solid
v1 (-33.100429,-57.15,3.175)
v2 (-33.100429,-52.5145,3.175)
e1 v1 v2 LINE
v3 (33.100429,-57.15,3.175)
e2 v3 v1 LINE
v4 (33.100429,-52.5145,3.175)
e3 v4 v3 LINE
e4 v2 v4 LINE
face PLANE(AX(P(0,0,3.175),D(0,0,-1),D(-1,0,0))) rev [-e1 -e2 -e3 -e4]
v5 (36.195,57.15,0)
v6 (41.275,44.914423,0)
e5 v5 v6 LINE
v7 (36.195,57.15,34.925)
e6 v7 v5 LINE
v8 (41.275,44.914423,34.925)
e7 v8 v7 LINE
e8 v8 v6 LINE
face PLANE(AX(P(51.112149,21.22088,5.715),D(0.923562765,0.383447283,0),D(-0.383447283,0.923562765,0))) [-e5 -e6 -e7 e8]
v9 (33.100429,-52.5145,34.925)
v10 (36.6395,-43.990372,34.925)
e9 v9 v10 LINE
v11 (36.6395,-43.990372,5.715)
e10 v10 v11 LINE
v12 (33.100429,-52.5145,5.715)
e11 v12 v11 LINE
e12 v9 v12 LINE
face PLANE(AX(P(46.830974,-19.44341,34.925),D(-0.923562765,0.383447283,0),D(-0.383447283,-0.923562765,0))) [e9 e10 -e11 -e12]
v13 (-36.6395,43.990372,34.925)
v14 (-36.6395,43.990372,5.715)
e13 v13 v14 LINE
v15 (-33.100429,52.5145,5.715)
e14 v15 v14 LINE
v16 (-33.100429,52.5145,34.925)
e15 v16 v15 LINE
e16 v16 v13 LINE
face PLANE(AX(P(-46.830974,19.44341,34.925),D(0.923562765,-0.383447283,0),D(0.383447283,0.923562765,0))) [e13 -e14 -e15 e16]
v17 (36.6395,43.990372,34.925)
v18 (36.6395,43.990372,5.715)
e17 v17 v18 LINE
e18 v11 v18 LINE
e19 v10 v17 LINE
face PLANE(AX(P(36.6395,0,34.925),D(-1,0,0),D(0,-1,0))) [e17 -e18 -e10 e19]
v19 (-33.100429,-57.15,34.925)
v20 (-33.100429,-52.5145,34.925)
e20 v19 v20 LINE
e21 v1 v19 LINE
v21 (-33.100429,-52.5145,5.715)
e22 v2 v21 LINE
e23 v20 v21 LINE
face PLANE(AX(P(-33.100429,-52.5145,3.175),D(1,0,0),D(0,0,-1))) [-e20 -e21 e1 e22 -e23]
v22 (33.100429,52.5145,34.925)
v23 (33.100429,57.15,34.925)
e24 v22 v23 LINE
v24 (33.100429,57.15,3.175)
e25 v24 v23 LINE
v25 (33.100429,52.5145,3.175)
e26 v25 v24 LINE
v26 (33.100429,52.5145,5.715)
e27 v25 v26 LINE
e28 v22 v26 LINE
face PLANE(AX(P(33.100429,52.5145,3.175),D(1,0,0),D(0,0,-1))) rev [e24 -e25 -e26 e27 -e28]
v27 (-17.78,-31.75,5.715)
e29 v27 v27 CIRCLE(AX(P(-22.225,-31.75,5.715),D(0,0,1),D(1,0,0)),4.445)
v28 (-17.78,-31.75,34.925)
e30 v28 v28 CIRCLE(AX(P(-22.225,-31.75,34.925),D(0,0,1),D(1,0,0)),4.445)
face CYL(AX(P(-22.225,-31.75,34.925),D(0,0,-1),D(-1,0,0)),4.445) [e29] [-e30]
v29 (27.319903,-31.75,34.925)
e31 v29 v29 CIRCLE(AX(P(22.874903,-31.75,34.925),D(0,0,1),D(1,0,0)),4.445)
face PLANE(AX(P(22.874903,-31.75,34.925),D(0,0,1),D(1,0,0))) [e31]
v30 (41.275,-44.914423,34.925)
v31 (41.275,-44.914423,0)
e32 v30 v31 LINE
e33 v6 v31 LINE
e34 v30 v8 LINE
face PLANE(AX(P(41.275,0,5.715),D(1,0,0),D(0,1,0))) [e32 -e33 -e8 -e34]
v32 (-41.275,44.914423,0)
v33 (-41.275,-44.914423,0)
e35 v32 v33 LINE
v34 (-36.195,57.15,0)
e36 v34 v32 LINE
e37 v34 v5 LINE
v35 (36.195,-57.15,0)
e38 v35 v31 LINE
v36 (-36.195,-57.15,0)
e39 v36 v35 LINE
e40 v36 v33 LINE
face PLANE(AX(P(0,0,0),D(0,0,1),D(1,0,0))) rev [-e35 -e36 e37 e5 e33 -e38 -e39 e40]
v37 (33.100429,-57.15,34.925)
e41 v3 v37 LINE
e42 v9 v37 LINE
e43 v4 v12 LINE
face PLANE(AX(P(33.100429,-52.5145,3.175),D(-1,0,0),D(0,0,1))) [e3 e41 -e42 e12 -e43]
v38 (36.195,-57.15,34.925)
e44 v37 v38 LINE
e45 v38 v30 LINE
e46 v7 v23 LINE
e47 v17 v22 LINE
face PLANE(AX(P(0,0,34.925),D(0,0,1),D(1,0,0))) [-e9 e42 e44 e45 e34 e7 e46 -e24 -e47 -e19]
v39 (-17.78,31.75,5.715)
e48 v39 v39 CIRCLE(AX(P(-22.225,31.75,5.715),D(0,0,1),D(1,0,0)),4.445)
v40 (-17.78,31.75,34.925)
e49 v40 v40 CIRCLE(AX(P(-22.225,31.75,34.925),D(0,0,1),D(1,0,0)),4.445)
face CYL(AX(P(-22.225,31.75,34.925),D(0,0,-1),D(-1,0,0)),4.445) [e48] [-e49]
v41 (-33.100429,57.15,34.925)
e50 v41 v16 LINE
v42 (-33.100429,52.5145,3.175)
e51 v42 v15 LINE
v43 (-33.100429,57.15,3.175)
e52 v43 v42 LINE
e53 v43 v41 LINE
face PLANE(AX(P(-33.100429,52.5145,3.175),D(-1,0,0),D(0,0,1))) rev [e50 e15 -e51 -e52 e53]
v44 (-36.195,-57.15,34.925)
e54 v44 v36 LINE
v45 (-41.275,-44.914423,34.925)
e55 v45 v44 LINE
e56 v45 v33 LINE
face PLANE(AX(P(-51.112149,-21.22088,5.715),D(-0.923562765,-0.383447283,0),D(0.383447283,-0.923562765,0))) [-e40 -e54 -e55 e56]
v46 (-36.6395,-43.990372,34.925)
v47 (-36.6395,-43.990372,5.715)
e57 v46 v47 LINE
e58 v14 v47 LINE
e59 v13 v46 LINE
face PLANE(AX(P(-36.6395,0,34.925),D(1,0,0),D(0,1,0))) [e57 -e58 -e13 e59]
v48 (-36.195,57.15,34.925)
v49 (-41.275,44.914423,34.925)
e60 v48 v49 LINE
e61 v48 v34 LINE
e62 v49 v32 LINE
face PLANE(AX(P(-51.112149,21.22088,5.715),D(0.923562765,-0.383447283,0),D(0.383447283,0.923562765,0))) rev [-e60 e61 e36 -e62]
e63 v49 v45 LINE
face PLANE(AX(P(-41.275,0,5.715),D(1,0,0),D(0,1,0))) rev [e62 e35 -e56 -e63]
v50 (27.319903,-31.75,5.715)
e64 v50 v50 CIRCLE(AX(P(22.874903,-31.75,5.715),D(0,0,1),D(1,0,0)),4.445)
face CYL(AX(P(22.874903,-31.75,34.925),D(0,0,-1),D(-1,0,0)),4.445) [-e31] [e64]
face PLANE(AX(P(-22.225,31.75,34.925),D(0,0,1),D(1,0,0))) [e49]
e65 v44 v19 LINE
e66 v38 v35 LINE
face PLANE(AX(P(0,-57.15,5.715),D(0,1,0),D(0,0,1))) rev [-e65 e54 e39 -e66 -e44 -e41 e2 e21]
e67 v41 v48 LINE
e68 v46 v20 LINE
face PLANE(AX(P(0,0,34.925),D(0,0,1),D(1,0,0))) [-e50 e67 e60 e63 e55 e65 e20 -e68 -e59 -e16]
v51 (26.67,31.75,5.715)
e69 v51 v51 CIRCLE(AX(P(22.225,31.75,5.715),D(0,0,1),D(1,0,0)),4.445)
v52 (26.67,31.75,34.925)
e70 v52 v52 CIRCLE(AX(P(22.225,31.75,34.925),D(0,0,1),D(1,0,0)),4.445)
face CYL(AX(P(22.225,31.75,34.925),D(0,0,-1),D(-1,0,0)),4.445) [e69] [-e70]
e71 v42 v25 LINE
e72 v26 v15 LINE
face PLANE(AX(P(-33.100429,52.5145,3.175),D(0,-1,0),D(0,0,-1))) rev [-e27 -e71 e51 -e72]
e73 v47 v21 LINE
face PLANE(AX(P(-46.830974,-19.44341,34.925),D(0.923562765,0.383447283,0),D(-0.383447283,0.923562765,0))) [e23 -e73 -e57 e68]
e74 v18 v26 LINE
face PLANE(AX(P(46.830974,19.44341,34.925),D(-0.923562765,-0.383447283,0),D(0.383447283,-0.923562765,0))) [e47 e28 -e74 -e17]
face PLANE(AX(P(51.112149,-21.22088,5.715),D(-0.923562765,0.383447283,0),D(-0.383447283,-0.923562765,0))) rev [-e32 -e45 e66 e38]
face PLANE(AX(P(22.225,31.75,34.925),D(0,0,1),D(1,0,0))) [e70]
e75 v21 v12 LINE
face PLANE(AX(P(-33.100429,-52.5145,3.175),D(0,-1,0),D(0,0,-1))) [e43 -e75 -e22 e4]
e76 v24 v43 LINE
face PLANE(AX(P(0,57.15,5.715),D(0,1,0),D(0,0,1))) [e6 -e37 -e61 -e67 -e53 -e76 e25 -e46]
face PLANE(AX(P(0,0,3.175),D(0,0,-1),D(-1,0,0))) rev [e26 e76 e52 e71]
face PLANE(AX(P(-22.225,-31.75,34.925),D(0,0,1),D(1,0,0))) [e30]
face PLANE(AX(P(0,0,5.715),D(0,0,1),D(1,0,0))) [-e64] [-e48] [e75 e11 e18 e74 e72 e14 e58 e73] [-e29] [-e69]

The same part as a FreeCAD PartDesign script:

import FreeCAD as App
import Part
import Sketcher

V = App.Vector
Q = App.Units.Quantity


def add_polygon(sketch, points):
    """Adds a closed chain of lines whose ends are joined by coincident constraints."""
    first, n = sketch.GeometryCount, len(points)
    for a, b in zip(points, points[1:] + points[:1]):
        sketch.addGeometry(Part.LineSegment(App.Vector(*a, 0), App.Vector(*b, 0)), False)
    for i in range(n):
        sketch.addConstraint(Sketcher.Constraint("Coincident", first + i, 2, first + (i + 1) % n, 1))

doc = App.newDocument("Part")
body = doc.addObject("PartDesign::Body", "Body")

# Sketch on XY plane
sketch1 = body.newObject("Sketcher::SketchObject", "Sketch")
sketch1.AttachmentSupport = (doc.getObject("XY_Plane"), [""])
sketch1.MapMode = "FlatFace"
add_polygon(sketch1, [(41, 45), (36, 57), (-36, 57), (-41, 45), (-41, -45), (-36, -57), (36, -57), (41, -45)])  # lines 0-7
sketch1.addConstraint([
    Sketcher.Constraint("Horizontal", 1),
    Sketcher.Constraint("Vertical", 3),
    Sketcher.Constraint("Horizontal", 5),
    Sketcher.Constraint("Vertical", 7),
    Sketcher.Constraint("Symmetric", 0, 2, 4, 2, -1, 1),
    Sketcher.Constraint("Symmetric", 2, 2, 6, 2, -1, 1),
    Sketcher.Constraint("Parallel", 0, 4),
    Sketcher.Constraint("Parallel", 2, 6),
    Sketcher.Constraint("Horizontal", 3, 2, 6, 2),
    Sketcher.Constraint("Vertical", 1, 2, 4, 2),
    Sketcher.Constraint("DistanceX", 1, 2, 1, 1, Q("2.85 in")),
    Sketcher.Constraint("DistanceX", 2, 2, 1, 2, Q("0.2 in")),
    Sketcher.Constraint("DistanceY", 4, 2, 1, 2, Q("4.5 in")),
    Sketcher.Constraint("DistanceY", 3, 2, 3, 1, 89.828846),
])
pad1 = body.newObject("PartDesign::Pad", "Pad")
pad1.Profile = sketch1
pad1.Length = Q("0.225 in")

# Sketch on XY plane
sketch2 = body.newObject("Sketcher::SketchObject", "Sketch001")
sketch2.AttachmentSupport = (doc.getObject("XY_Plane"), [""])
sketch2.MapMode = "FlatFace"
sketch2.AttachmentOffset = App.Placement(V(0, 0, 0.225 * 25.4), App.Rotation())
add_polygon(sketch2, [(-41, 45), (-41, -45), (-36, -57), (36, -57), (41, -45), (41, 45), (36, 57), (-36, 57)])  # lines 0-7
add_polygon(sketch2, [(-37, 44), (-33, 53), (33, 53), (37, 44), (37, -44), (33, -53), (-33, -53), (-37, -44)])  # lines 8-15
sketch2.addConstraint([
    Sketcher.Constraint("Vertical", 0),
    Sketcher.Constraint("Horizontal", 2),
    Sketcher.Constraint("Vertical", 4),
    Sketcher.Constraint("Horizontal", 6),
    Sketcher.Constraint("Horizontal", 9),
    Sketcher.Constraint("Vertical", 11),
    Sketcher.Constraint("Horizontal", 13),
    Sketcher.Constraint("Vertical", 15),
    Sketcher.Constraint("Symmetric", 0, 2, 4, 2, -1, 1),
    Sketcher.Constraint("Symmetric", 1, 2, 5, 2, -1, 1),
    Sketcher.Constraint("Symmetric", 8, 2, 12, 2, -1, 1),
    Sketcher.Constraint("Symmetric", 10, 2, 14, 2, -1, 1),
    Sketcher.Constraint("Parallel", 3, 7),
    Sketcher.Constraint("Parallel", 7, 8),
    Sketcher.Constraint("Parallel", 5, 10),
    Sketcher.Constraint("Parallel", 8, 12),
    Sketcher.Constraint("Parallel", 10, 14),
    Sketcher.Constraint("Horizontal", 0, 2, 3, 2),
    Sketcher.Constraint("Horizontal", 4, 2, 7, 2),
    Sketcher.Constraint("Horizontal", 11, 2, 14, 2),
    Sketcher.Constraint("Vertical", 2, 2, 5, 2),
    Sketcher.Constraint("DistanceX", 2, 1, 2, 2, Q("2.85 in")),
    Sketcher.Constraint("DistanceX", 0, 2, 1, 2, Q("0.2 in")),
    Sketcher.Constraint("DistanceY", 2, 2, 5, 2, Q("4.5 in")),
    Sketcher.Constraint("DistanceX", 14, 2, 11, 2, Q("2.885 in")),
    Sketcher.Constraint("DistanceY", -1, 1, 8, 2, Q("2.0675 in")),
    Sketcher.Constraint("DistanceX", 9, 1, 9, 2, 66.200859),
    Sketcher.Constraint("DistanceY", 0, 2, 0, 1, 89.828846),
])
pad2 = body.newObject("PartDesign::Pad", "Pad001")
pad2.Profile = sketch2
pad2.Length = Q("1.15 in")

# Sketch on XY plane
sketch3 = body.newObject("Sketcher::SketchObject", "Sketch002")
sketch3.AttachmentSupport = (doc.getObject("XY_Plane"), [""])
sketch3.MapMode = "FlatFace"
sketch3.AttachmentOffset = App.Placement(V(0, 0, 1.375 * 25.4), App.Rotation())
add_polygon(sketch3, [(-33.1, 57.1), (-33.1, 52.5), (33.1, 52.5), (33.1, 57.1)])  # lines 0-3
sketch3.addConstraint([
    Sketcher.Constraint("Vertical", 0),
    Sketcher.Constraint("Horizontal", 1),
    Sketcher.Constraint("Vertical", 2),
    Sketcher.Constraint("Horizontal", 3),
    Sketcher.Constraint("DistanceY", -1, 1, 2, 2, Q("2.25 in")),
    Sketcher.Constraint("DistanceY", 0, 2, 0, 1, Q("0.1825 in")),
    Sketcher.Constraint("DistanceX", 1, 1, 1, 2, 66.200859),
    Sketcher.Constraint("DistanceX", 0, 2, -1, 1, 33.100429),
])
pocket1 = body.newObject("PartDesign::Pocket", "Pocket")
pocket1.Profile = sketch3
pocket1.Length = Q("1.25 in")
doc.recompute()

mirrored = body.newObject("PartDesign::Mirrored", "Mirrored")
mirrored.Originals = [pocket1]
mirrored.MirrorPlane = (doc.getObject("XZ_Plane"), [""])
body.Tip = mirrored

# Sketch on XY plane
sketch4 = body.newObject("Sketcher::SketchObject", "Sketch003")
sketch4.AttachmentSupport = (doc.getObject("XY_Plane"), [""])
sketch4.MapMode = "FlatFace"
sketch4.AttachmentOffset = App.Placement(V(0, 0, 0.225 * 25.4), App.Rotation())
sketch4.addGeometry([
    Part.Circle(V(22.9, -31.8, 0), V(0, 0, 1), 4.4),
    Part.Circle(V(-22.2, -31.8, 0), V(0, 0, 1), 4.4),
    Part.Circle(V(22.2, 31.8, 0), V(0, 0, 1), 4.4),
    Part.Circle(V(-22.2, 31.8, 0), V(0, 0, 1), 4.4),
], False)
sketch4.addConstraint([
    Sketcher.Constraint("Equal", 0, 1),
    Sketcher.Constraint("Equal", 1, 2),
    Sketcher.Constraint("Equal", 2, 3),
    Sketcher.Constraint("Symmetric", 1, 3, 2, 3, -1, 1),
    Sketcher.Constraint("Symmetric", 2, 3, 3, 3, -2),
    Sketcher.Constraint("Horizontal", 0, 3, 1, 3),
    Sketcher.Constraint("Diameter", 0, Q("0.35 in")),
    Sketcher.Constraint("DistanceY", 0, 3, 2, 3, Q("2.5 in")),
    Sketcher.Constraint("DistanceX", 1, 3, 2, 3, Q("1.75 in")),
    Sketcher.Constraint("DistanceX", -1, 1, 0, 3, 22.874903),
])
pad3 = body.newObject("PartDesign::Pad", "Pad002")
pad3.Profile = sketch4
pad3.Length = Q("1.15 in")

doc.recompute()
